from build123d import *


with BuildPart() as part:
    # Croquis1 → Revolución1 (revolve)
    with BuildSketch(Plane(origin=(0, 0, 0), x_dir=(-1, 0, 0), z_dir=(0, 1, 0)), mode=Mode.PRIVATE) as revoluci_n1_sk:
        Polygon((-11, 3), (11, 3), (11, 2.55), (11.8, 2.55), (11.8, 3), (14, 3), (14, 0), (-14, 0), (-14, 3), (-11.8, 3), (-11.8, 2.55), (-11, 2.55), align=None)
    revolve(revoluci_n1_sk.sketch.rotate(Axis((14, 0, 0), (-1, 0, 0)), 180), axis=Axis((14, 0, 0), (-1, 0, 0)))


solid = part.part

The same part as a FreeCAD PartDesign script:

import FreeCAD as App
import Part
import Sketcher
Q = App.Units.Quantity

doc = App.newDocument("Part")
params = doc.addObject("Spreadsheet::Sheet", "Params")
for row, (alias, value) in enumerate([
    ("sketch1_width", "22 mm"),
    ("sketch1_width2", "28 mm"),
    ("sketch1_height", "3 mm"),
    ("sketch1_width3", "0.8 mm"),
    ("sketch1_height2", "0.45 mm"),
    ("revolution_angle", "360 deg"),
], start=1):
    params.set(f"A{row}", alias)
    params.set(f"B{row}", "=" + value)
    params.setAlias(f"B{row}", alias)

body = doc.addObject("PartDesign::Body", "Body")

sketch1 = doc.addObject("Sketcher::SketchObject", "Sketch")
body.addObject(sketch1)
sketch1.AttachmentSupport = (doc.XZ_Plane, [""])
sketch1.MapMode = "FlatFace"
sketch1.addGeometry([
    Part.LineSegment(App.Vector(-11, 3, 0), App.Vector(11, 3, 0)),
    Part.LineSegment(App.Vector(11, 3, 0), App.Vector(11, 2.55, 0)),
    Part.LineSegment(App.Vector(11, 2.55, 0), App.Vector(11.8, 2.55, 0)),
    Part.LineSegment(App.Vector(11.8, 2.55, 0), App.Vector(11.8, 3, 0)),
    Part.LineSegment(App.Vector(11.8, 3, 0), App.Vector(14, 3, 0)),
    Part.LineSegment(App.Vector(14, 3, 0), App.Vector(14, 0, 0)),
    Part.LineSegment(App.Vector(14, 0, 0), App.Vector(-14, 0, 0)),
    Part.LineSegment(App.Vector(-14, 0, 0), App.Vector(-14, 3, 0)),
    Part.LineSegment(App.Vector(-14, 3, 0), App.Vector(-11.8, 3, 0)),
    Part.LineSegment(App.Vector(-11.8, 3, 0), App.Vector(-11.8, 2.55, 0)),
    Part.LineSegment(App.Vector(-11.8, 2.55, 0), App.Vector(-11, 2.55, 0)),
    Part.LineSegment(App.Vector(-11, 2.55, 0), App.Vector(-11, 3, 0)),
], False)
sketch1.addConstraint([
    Sketcher.Constraint("Coincident", 0, 2, 1, 1),
    Sketcher.Constraint("Coincident", 1, 2, 2, 1),
    Sketcher.Constraint("Coincident", 2, 2, 3, 1),
    Sketcher.Constraint("Coincident", 3, 2, 4, 1),
    Sketcher.Constraint("Coincident", 4, 2, 5, 1),
    Sketcher.Constraint("Coincident", 5, 2, 6, 1),
    Sketcher.Constraint("Coincident", 6, 2, 7, 1),
    Sketcher.Constraint("Coincident", 7, 2, 8, 1),
    Sketcher.Constraint("Coincident", 8, 2, 9, 1),
    Sketcher.Constraint("Coincident", 9, 2, 10, 1),
    Sketcher.Constraint("Coincident", 10, 2, 11, 1),
    Sketcher.Constraint("Coincident", 11, 2, 0, 1),
    Sketcher.Constraint("Horizontal", 0),
    Sketcher.Constraint("Vertical", 1),
    Sketcher.Constraint("Horizontal", 2),
    Sketcher.Constraint("Vertical", 3),
    Sketcher.Constraint("Horizontal", 4),
    Sketcher.Constraint("Vertical", 5),
    Sketcher.Constraint("Horizontal", 6),
    Sketcher.Constraint("Vertical", 7),
    Sketcher.Constraint("Horizontal", 8),
    Sketcher.Constraint("Vertical", 9),
    Sketcher.Constraint("Horizontal", 10),
    Sketcher.Constraint("Vertical", 11),
    Sketcher.Constraint("Symmetric", 5, 2, 6, 2, -1, 1),
    Sketcher.Constraint("Symmetric", 3, 2, 8, 2, -2),
    Sketcher.Constraint("Symmetric", 1, 2, 10, 2, -2),
    Sketcher.Constraint("Horizontal", 0, 2, 3, 2),
    Sketcher.Constraint("DistanceX", 0, 1, 0, 2, Q("22 mm")),
    Sketcher.Constraint("DistanceX", 6, 2, 6, 1, Q("28 mm")),
    Sketcher.Constraint("DistanceY", 5, 2, 5, 1, Q("3 mm")),
    Sketcher.Constraint("DistanceX", 2, 1, 2, 2, Q("0.8 mm")),
    Sketcher.Constraint("DistanceY", 1, 2, 1, 1, Q("0.45 mm")),
])
sketch1.setExpression("Constraints[28]", "Params.sketch1_width")
sketch1.setExpression("Constraints[29]", "Params.sketch1_width2")
sketch1.setExpression("Constraints[30]", "Params.sketch1_height")
sketch1.setExpression("Constraints[31]", "Params.sketch1_width3")
sketch1.setExpression("Constraints[32]", "Params.sketch1_height2")
revolution = doc.addObject("PartDesign::Revolution", "Revolution")
body.addObject(revolution)
revolution.Profile = sketch1
revolution.ReferenceAxis = (sketch1, ["H_Axis"])
revolution.setExpression("Angle", "Params.revolution_angle")

doc.recompute()
